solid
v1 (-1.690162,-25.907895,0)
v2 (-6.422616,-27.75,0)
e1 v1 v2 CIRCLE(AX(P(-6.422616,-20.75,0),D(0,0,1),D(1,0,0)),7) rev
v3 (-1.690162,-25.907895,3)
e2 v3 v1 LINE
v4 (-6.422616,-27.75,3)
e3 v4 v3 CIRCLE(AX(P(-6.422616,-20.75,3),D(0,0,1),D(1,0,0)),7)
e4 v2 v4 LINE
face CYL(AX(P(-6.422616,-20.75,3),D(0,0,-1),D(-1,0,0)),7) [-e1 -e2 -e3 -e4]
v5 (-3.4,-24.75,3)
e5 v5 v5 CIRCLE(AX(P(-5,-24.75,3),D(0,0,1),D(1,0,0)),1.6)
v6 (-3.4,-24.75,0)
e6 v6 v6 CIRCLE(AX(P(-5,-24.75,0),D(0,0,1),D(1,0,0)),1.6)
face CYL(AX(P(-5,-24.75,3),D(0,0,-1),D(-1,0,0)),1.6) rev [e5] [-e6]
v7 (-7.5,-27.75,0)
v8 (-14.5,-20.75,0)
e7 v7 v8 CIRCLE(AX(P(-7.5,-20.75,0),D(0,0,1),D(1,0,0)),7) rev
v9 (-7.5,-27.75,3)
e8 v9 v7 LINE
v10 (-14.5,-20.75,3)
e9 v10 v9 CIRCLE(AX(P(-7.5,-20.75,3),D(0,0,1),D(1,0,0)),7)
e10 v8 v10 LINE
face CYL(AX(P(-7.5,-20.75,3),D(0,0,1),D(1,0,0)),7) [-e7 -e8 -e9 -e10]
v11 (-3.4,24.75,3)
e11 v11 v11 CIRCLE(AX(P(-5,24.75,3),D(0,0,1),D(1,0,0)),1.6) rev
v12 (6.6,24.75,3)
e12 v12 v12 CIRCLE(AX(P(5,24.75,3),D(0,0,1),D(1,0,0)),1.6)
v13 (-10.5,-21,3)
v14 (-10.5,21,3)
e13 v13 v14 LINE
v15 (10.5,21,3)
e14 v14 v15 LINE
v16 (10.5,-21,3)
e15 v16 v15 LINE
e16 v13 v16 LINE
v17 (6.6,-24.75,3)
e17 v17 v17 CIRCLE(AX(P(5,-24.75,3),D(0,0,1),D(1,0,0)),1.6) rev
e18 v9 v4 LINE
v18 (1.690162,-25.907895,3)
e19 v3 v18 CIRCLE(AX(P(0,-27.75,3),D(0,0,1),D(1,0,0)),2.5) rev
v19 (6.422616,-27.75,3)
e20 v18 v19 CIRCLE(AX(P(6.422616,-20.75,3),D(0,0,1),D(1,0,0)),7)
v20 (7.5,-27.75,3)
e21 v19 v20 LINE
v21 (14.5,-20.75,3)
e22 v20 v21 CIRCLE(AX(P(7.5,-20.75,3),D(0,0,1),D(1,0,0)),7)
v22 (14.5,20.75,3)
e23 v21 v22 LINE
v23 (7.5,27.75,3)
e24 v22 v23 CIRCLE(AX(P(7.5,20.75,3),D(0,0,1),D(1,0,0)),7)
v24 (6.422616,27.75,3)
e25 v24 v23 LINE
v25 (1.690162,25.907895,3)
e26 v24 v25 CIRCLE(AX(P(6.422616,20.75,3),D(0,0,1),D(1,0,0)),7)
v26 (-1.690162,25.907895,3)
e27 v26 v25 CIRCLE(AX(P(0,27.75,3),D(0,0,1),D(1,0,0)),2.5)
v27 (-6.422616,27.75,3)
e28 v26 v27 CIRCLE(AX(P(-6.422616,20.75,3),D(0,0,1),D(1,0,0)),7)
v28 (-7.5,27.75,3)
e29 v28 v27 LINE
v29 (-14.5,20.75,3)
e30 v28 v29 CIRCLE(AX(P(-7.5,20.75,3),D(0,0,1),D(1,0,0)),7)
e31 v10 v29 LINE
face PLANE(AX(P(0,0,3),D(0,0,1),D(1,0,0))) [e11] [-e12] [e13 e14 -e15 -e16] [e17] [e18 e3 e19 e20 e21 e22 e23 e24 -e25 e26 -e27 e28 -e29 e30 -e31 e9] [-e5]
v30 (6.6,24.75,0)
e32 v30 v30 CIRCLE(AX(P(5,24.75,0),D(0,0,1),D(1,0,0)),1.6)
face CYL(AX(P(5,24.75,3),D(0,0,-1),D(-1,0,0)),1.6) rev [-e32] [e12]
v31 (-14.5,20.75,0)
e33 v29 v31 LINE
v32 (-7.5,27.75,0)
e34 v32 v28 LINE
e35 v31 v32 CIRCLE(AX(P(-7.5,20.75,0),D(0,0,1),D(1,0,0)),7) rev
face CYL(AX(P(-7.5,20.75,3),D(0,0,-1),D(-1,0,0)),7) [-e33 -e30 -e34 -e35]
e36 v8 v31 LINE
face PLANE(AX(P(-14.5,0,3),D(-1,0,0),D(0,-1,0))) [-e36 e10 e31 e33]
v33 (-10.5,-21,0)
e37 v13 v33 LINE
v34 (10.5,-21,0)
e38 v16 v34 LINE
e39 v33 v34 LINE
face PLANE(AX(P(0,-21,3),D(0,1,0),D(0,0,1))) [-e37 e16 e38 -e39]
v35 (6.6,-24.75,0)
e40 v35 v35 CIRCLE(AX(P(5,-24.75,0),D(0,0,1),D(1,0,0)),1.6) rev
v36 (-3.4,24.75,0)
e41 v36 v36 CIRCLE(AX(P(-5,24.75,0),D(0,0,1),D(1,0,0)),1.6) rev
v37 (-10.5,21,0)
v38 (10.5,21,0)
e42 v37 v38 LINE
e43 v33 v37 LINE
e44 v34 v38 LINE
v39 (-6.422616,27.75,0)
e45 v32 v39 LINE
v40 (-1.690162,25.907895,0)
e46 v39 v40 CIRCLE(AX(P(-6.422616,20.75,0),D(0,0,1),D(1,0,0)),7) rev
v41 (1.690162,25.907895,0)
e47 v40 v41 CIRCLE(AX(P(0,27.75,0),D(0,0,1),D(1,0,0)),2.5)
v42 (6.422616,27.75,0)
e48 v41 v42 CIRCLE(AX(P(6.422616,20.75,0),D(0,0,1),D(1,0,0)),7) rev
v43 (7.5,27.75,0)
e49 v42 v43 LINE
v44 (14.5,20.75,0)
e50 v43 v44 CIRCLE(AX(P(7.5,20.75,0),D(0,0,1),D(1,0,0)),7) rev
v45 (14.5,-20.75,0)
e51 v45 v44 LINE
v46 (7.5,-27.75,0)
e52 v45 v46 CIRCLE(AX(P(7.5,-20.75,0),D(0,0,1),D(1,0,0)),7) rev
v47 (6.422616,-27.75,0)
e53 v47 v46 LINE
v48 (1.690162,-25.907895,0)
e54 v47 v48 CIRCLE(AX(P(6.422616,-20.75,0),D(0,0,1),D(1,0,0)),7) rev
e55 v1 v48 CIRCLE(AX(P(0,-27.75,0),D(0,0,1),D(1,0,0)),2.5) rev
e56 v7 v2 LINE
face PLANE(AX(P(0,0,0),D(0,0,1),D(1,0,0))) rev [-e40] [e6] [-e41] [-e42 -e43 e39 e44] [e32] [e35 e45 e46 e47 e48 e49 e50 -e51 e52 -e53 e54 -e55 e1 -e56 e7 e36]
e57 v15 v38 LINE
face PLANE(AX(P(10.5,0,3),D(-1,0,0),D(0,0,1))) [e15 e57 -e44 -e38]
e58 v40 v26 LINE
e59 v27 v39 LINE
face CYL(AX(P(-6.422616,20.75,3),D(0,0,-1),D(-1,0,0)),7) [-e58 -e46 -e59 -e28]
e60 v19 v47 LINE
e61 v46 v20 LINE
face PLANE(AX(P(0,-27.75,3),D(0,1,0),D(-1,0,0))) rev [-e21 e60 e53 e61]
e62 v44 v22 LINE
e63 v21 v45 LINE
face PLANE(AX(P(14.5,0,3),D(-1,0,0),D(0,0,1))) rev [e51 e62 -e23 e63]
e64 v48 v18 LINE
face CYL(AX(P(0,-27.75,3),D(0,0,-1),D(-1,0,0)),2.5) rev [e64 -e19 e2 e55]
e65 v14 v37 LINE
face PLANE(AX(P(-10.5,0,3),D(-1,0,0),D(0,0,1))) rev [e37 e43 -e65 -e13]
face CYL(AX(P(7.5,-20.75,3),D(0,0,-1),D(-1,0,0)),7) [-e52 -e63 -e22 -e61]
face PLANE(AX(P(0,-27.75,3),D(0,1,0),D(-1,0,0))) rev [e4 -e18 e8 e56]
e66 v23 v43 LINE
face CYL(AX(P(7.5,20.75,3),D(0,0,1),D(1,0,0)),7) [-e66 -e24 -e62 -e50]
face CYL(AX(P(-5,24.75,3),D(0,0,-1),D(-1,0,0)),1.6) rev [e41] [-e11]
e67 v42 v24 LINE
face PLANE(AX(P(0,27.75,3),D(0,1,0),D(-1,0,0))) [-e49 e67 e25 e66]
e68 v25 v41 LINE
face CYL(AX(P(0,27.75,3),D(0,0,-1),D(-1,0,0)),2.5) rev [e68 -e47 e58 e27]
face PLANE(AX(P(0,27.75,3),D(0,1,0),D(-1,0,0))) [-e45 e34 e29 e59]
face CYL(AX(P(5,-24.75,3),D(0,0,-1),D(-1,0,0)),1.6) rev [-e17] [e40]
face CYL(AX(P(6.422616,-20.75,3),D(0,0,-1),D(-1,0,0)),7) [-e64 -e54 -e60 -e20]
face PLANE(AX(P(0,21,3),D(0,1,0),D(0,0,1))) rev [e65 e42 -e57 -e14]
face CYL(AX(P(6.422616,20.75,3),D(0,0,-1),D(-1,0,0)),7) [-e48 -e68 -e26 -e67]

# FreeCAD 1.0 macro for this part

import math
import FreeCAD as App
import Part
import Sketcher

V = App.Vector
Q = App.Units.Quantity


def edges_at(feature, points):
    """Names of the edges that pass closest to the given points."""
    edges = feature.Shape.Edges
    near = lambda p: min(range(len(edges)), key=lambda i: edges[i].distToShape(Part.Vertex(*p))[0])
    return sorted({f"Edge{near(p) + 1}" for p in points})


def add_polygon(sketch, points):
    """Adds a closed chain of lines whose ends are joined by coincident constraints."""
    first, n = sketch.GeometryCount, len(points)
    for a, b in zip(points, points[1:] + points[:1]):
        sketch.addGeometry(Part.LineSegment(App.Vector(*a, 0), App.Vector(*b, 0)), False)
    for i in range(n):
        sketch.addConstraint(Sketcher.Constraint("Coincident", first + i, 2, first + (i + 1) % n, 1))

doc = App.newDocument("Part")
body = doc.addObject("PartDesign::Body", "Body")

sketch1 = body.newObject("Sketcher::SketchObject", "Sketch")
sketch1.AttachmentSupport = (doc.getObject("XY_Plane"), [""])
sketch1.MapMode = "FlatFace"
sketch1.addGeometry(Part.LineSegment(V(-14.5, 27.75, 0), V(-14.5, -27.75, 0)), False)
sketch1.addGeometry(Part.LineSegment(V(-14.5, -27.75, 0), V(-2.5, -27.75, 0)), False)
sketch1.addGeometry(Part.ArcOfCircle(Part.Circle(V(0, -27.75, 0), V(0, 0, 1), 2.5), math.radians(0), math.radians(180)), False)
sketch1.addGeometry(Part.LineSegment(V(2.5, -27.75, 0), V(14.5, -27.75, 0)), False)
sketch1.addGeometry(Part.LineSegment(V(14.5, -27.75, 0), V(14.5, 27.75, 0)), False)
sketch1.addGeometry(Part.LineSegment(V(14.5, 27.75, 0), V(2.5, 27.75, 0)), False)
sketch1.addGeometry(Part.ArcOfCircle(Part.Circle(V(0, 27.75, 0), V(0, 0, 1), 2.5), math.radians(180), math.radians(360)), False)
sketch1.addGeometry(Part.LineSegment(V(-2.5, 27.75, 0), V(-14.5, 27.75, 0)), False)
sketch1.addGeometry(Part.Circle(V(-5, -24.75, 0), V(0, 0, 1), 1.6), False)
sketch1.addGeometry(Part.Circle(V(5, -24.75, 0), V(0, 0, 1), 1.6), False)
sketch1.addGeometry(Part.Circle(V(-5, 24.75, 0), V(0, 0, 1), 1.6), False)
add_polygon(sketch1, [(10.5, -21), (-10.5, -21), (-10.5, 21), (10.5, 21)])
sketch1.addGeometry(Part.Circle(V(5, 24.75, 0), V(0, 0, 1), 1.6), False)
sketch1.addConstraint(Sketcher.Constraint("Coincident", 0, 2, 1, 1))
sketch1.addConstraint(Sketcher.Constraint("Coincident", 1, 2, 2, 2))
sketch1.addConstraint(Sketcher.Constraint("Coincident", 2, 1, 3, 1))
sketch1.addConstraint(Sketcher.Constraint("Coincident", 3, 2, 4, 1))
sketch1.addConstraint(Sketcher.Constraint("Coincident", 4, 2, 5, 1))
sketch1.addConstraint(Sketcher.Constraint("Coincident", 5, 2, 6, 2))
sketch1.addConstraint(Sketcher.Constraint("Coincident", 6, 1, 7, 1))
sketch1.addConstraint(Sketcher.Constraint("Coincident", 7, 2, 0, 1))
sketch1.addConstraint(Sketcher.Constraint("Vertical", 0))
sketch1.addConstraint(Sketcher.Constraint("Horizontal", 1))
sketch1.addConstraint(Sketcher.Constraint("Horizontal", 3))
sketch1.addConstraint(Sketcher.Constraint("Vertical", 4))
sketch1.addConstraint(Sketcher.Constraint("Horizontal", 5))
sketch1.addConstraint(Sketcher.Constraint("Horizontal", 7))
sketch1.addConstraint(Sketcher.Constraint("Horizontal", 11))
sketch1.addConstraint(Sketcher.Constraint("Vertical", 12))
sketch1.addConstraint(Sketcher.Constraint("Horizontal", 13))
sketch1.addConstraint(Sketcher.Constraint("Vertical", 14))
sketch1.addConstraint(Sketcher.Constraint("Equal", 2, 6))
sketch1.addConstraint(Sketcher.Constraint("Equal", 8, 9))
sketch1.addConstraint(Sketcher.Constraint("Equal", 9, 10))
sketch1.addConstraint(Sketcher.Constraint("Equal", 10, 15))
sketch1.addConstraint(Sketcher.Constraint("Symmetric", 2, 3, 6, 3, -1, 1))
sketch1.addConstraint(Sketcher.Constraint("Symmetric", 9, 3, 10, 3, -1, 1))
sketch1.addConstraint(Sketcher.Constraint("Symmetric", 8, 3, 15, 3, -1, 1))
sketch1.addConstraint(Sketcher.Constraint("Symmetric", 0, 2, 4, 2, -1, 1))
sketch1.addConstraint(Sketcher.Constraint("Symmetric", 11, 2, 13, 2, -1, 1))
sketch1.addConstraint(Sketcher.Constraint("Symmetric", 8, 3, 9, 3, -2))
sketch1.addConstraint(Sketcher.Constraint("Symmetric", 1, 2, 2, 1, -2))
sketch1.addConstraint(Sketcher.Constraint("Horizontal", 2, 3, 0, 2))
sketch1.addConstraint(Sketcher.Constraint("Horizontal", 5, 2, 6, 1))
sketch1.addConstraint(Sketcher.Constraint("Diameter", 8, Q("3.2 mm")))
sketch1.addConstraint(Sketcher.Constraint("Radius", 2, Q("2.5 mm")))
sketch1.addConstraint(Sketcher.Constraint("DistanceX", 1, 1, 1, 2, Q("12 mm")))
sketch1.addConstraint(Sketcher.Constraint("DistanceX", 11, 2, 11, 1, Q("21 mm")))
sketch1.addConstraint(Sketcher.Constraint("DistanceY", 12, 1, 12, 2, Q("42 mm")))
sketch1.addConstraint(Sketcher.Constraint("DistanceY", 0, 2, 0, 1, Q("55.5 mm")))
sketch1.addConstraint(Sketcher.Constraint("DistanceX", 8, 3, -1, 1, Q("5 mm")))
sketch1.addConstraint(Sketcher.Constraint("DistanceY", 2, 3, 8, 3, Q("3 mm")))
pad1 = body.newObject("PartDesign::Pad", "Pad")
pad1.Profile = sketch1
pad1.Length = 3
doc.recompute()

fillet = body.newObject("PartDesign::Fillet", "Fillet")
fillet.Base = (pad1, edges_at(pad1, [
    (-14.5, -27.75, 1.5),
    (-14.5, 27.75, 1.5),
    (-2.5, 27.75, 1.5),
    (2.5, 27.75, 1.5),
    (14.5, 27.75, 1.5),
    (14.5, -27.75, 1.5),
    (2.5, -27.75, 1.5),
    (-2.5, -27.75, 1.5),
]))
fillet.Radius = 7

doc.recompute()
